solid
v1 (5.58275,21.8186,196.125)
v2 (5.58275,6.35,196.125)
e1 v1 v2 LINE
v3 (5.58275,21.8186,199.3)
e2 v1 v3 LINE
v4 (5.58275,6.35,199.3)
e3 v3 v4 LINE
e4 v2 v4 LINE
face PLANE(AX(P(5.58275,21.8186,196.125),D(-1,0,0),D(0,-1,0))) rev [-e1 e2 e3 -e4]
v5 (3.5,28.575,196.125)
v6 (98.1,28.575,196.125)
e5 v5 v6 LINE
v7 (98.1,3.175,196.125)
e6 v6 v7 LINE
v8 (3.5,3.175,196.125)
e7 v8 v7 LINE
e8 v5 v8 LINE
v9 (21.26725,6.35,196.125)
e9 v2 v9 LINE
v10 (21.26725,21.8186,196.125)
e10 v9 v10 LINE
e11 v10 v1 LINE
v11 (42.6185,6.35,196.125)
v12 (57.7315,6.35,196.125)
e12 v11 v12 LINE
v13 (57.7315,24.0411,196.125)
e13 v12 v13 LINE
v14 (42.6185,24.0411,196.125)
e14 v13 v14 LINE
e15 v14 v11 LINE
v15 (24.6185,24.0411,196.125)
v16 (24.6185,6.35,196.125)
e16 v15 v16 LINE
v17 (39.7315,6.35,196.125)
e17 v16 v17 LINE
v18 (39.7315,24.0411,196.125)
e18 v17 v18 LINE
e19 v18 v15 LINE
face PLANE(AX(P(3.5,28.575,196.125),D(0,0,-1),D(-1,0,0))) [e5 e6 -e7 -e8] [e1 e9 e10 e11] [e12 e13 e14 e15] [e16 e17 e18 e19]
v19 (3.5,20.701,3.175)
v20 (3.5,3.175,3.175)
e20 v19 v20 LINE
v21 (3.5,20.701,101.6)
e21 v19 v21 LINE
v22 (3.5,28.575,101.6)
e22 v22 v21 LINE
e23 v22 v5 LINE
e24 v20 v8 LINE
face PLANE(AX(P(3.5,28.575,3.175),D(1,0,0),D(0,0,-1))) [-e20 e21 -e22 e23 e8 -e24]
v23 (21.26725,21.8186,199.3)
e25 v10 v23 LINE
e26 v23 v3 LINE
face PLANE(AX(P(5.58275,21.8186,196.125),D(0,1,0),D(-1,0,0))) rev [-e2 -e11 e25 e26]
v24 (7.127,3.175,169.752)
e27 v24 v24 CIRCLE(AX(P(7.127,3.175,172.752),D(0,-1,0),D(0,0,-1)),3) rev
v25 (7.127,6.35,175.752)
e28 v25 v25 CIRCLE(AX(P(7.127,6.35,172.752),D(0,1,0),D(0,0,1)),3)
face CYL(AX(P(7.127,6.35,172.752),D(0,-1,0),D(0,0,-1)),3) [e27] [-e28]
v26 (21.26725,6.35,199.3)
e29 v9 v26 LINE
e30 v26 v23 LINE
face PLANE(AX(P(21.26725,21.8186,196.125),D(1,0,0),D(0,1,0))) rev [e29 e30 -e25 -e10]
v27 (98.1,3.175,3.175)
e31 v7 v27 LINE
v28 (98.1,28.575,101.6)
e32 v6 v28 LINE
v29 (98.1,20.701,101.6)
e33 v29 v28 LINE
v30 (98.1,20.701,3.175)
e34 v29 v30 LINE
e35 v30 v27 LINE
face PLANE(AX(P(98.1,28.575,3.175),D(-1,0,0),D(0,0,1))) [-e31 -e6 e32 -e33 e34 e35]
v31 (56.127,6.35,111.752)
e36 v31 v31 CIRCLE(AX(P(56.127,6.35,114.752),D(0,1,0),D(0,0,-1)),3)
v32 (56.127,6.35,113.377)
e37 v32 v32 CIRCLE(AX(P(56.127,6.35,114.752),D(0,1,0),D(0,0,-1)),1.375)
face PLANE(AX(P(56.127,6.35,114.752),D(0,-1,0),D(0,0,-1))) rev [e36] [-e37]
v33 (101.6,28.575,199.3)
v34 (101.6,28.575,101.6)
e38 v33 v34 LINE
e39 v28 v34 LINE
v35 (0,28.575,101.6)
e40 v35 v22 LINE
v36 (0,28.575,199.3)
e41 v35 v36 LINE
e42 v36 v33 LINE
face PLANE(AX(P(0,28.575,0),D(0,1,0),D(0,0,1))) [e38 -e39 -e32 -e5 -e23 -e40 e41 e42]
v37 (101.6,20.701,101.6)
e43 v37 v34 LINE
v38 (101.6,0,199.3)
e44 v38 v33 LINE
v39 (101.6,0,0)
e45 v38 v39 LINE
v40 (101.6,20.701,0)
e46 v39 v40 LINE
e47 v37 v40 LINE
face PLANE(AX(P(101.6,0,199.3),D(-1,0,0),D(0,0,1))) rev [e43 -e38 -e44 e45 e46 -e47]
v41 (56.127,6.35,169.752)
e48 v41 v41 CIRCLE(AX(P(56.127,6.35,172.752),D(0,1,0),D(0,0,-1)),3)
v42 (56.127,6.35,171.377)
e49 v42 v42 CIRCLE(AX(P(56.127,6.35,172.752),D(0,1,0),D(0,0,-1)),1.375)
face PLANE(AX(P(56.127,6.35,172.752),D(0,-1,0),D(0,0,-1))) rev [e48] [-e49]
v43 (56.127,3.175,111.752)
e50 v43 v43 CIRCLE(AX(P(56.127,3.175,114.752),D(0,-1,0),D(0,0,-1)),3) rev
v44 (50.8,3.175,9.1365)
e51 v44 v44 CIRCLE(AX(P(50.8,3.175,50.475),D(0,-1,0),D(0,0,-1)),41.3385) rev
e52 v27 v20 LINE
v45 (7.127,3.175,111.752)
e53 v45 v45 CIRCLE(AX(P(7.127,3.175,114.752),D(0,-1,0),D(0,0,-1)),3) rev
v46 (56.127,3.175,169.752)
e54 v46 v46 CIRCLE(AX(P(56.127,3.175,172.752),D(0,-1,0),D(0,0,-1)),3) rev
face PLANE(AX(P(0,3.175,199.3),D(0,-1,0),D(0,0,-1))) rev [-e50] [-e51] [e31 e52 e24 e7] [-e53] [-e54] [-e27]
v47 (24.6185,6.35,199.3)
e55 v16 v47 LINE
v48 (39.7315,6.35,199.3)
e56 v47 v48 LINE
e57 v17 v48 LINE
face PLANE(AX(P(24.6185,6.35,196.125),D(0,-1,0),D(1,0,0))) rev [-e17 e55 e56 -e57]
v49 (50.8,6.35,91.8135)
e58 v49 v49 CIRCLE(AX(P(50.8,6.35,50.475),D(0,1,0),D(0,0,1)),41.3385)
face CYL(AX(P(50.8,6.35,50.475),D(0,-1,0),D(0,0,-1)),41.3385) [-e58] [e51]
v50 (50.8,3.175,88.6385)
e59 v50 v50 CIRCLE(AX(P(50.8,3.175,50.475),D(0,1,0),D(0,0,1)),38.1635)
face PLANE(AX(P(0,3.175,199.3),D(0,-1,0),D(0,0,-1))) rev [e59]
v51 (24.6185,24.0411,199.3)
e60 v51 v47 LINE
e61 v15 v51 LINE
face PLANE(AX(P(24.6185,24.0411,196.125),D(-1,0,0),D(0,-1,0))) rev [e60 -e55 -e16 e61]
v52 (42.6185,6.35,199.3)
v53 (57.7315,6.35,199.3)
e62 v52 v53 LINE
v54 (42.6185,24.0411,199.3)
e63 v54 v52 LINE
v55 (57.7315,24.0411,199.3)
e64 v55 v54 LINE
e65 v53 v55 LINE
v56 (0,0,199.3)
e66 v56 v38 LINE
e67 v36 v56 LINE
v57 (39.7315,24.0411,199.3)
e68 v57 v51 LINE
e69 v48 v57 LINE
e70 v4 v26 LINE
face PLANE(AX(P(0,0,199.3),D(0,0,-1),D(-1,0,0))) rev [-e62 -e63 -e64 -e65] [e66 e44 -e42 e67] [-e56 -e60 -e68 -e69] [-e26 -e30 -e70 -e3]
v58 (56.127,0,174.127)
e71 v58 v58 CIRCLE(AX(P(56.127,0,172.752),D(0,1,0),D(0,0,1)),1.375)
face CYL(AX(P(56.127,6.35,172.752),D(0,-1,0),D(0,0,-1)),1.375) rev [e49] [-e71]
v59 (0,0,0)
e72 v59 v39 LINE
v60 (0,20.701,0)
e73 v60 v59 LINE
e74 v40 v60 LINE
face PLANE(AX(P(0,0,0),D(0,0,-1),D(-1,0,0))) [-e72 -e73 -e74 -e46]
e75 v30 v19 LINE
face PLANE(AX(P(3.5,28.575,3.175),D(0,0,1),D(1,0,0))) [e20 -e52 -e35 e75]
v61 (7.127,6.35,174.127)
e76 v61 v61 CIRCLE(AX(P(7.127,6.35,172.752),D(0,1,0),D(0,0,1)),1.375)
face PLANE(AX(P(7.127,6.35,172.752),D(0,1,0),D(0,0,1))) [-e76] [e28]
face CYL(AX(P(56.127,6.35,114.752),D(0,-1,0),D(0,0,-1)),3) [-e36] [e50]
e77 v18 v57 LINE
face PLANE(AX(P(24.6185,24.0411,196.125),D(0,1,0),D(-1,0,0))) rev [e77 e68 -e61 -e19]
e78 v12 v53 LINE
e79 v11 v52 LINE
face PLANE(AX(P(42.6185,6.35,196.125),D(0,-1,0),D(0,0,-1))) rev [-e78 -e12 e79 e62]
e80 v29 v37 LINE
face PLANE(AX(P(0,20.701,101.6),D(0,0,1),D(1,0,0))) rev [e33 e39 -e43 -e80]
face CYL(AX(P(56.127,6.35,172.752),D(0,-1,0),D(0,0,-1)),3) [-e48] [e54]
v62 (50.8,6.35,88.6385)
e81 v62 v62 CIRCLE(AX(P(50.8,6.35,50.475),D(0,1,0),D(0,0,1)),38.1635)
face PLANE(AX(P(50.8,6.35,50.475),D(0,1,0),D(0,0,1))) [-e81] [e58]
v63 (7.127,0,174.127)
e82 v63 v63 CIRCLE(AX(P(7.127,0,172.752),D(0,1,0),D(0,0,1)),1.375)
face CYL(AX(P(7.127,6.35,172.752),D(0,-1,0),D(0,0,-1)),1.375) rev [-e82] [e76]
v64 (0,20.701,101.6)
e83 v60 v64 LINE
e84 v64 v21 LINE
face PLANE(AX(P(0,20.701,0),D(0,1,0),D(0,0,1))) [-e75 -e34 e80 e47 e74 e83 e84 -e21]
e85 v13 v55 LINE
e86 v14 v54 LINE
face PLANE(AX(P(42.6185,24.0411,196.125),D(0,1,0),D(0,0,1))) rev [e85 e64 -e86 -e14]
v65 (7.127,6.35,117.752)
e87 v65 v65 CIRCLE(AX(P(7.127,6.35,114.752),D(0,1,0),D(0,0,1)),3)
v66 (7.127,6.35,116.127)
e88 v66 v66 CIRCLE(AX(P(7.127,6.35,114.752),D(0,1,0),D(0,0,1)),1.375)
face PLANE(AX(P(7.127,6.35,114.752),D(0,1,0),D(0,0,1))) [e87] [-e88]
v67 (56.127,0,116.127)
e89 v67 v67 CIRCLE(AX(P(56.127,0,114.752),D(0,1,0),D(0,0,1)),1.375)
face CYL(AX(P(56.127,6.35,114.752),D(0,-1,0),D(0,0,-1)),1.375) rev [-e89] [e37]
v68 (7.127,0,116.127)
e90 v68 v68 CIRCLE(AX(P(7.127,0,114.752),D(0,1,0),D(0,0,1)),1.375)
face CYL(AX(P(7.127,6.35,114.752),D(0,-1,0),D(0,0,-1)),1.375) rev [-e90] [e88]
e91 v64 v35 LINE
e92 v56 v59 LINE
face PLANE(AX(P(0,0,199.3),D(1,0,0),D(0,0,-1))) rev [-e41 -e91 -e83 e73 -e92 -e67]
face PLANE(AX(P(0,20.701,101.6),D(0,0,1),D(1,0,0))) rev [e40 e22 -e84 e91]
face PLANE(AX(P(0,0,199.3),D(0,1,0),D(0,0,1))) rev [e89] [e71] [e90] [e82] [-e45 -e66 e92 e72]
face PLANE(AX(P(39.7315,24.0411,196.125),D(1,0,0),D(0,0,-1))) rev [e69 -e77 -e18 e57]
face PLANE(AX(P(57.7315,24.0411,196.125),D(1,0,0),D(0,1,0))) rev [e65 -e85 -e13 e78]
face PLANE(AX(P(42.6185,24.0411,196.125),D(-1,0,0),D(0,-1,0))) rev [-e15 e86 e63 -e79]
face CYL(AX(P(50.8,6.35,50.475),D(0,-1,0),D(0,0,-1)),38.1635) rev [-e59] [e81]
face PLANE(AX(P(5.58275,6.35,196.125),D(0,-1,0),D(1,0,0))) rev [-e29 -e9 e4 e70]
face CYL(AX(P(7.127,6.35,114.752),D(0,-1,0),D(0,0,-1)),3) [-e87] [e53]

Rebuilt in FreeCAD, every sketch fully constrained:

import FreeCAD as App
import Part
import Sketcher

V = App.Vector
Q = App.Units.Quantity

doc = App.newDocument("Part")
body = doc.addObject("PartDesign::Body", "Body")

sketch1 = body.newObject("Sketcher::SketchObject", "Sketch")
sketch1.AttachmentSupport = (doc.getObject("XY_Plane"), [""])
sketch1.MapMode = "FlatFace"
sketch1.addGeometry([
    Part.LineSegment(V(0, 3.175, 0), V(0, 0, 0)),
    Part.LineSegment(V(0, 0, 0), V(101.6, 0, 0)),
    Part.LineSegment(V(101.6, 0, 0), V(101.6, 3.175, 0)),
    Part.LineSegment(V(101.6, 3.175, 0), V(0, 3.175, 0)),
], False)
sketch1.addConstraint([
    Sketcher.Constraint("Coincident", 0, 2, 1, 1),
    Sketcher.Constraint("Coincident", 1, 2, 2, 1),
    Sketcher.Constraint("Coincident", 2, 2, 3, 1),
    Sketcher.Constraint("Coincident", 3, 2, 0, 1),
    Sketcher.Constraint("Vertical", 0),
    Sketcher.Constraint("Horizontal", 1),
    Sketcher.Constraint("Vertical", 2),
    Sketcher.Constraint("Horizontal", 3),
    Sketcher.Constraint("Coincident", 0, 2, -1, 1),
    Sketcher.Constraint("DistanceX", 1, 1, 1, 2, Q("4 in")),
    Sketcher.Constraint("DistanceY", 0, 2, 0, 1, Q("0.125 in")),
])
pad1 = body.newObject("PartDesign::Pad", "Pad")
pad1.Profile = sketch1
pad1.Length = 199.3

sketch2 = body.newObject("Sketcher::SketchObject", "Sketch001")
sketch2.AttachmentSupport = (doc.getObject("XZ_Plane"), [""])
sketch2.MapMode = "FlatFace"
sketch2.AttachmentOffset = App.Placement(V(0, 0, -0.125 * 25.4), App.Rotation())
sketch2.addGeometry([
    Part.LineSegment(V(0, 0, 0), V(0, 199.3, 0)),
    Part.LineSegment(V(0, 199.3, 0), V(101.6, 199.3, 0)),
    Part.LineSegment(V(101.6, 199.3, 0), V(101.6, 0, 0)),
    Part.LineSegment(V(101.6, 0, 0), V(0, 0, 0)),
    Part.LineSegment(V(98.1, 196.125, 0), V(3.5, 196.125, 0)),
    Part.LineSegment(V(3.5, 196.125, 0), V(3.5, 3.175, 0)),
    Part.LineSegment(V(3.5, 3.175, 0), V(98.1, 3.175, 0)),
    Part.LineSegment(V(98.1, 3.175, 0), V(98.1, 196.125, 0)),
], False)
sketch2.addConstraint([
    Sketcher.Constraint("Coincident", 0, 2, 1, 1),
    Sketcher.Constraint("Coincident", 1, 2, 2, 1),
    Sketcher.Constraint("Coincident", 2, 2, 3, 1),
    Sketcher.Constraint("Coincident", 3, 2, 0, 1),
    Sketcher.Constraint("Coincident", 4, 2, 5, 1),
    Sketcher.Constraint("Coincident", 5, 2, 6, 1),
    Sketcher.Constraint("Coincident", 6, 2, 7, 1),
    Sketcher.Constraint("Coincident", 7, 2, 4, 1),
    Sketcher.Constraint("Vertical", 0),
    Sketcher.Constraint("Horizontal", 1),
    Sketcher.Constraint("Vertical", 2),
    Sketcher.Constraint("Horizontal", 3),
    Sketcher.Constraint("Horizontal", 4),
    Sketcher.Constraint("Vertical", 5),
    Sketcher.Constraint("Horizontal", 6),
    Sketcher.Constraint("Vertical", 7),
    Sketcher.Constraint("Coincident", 3, 2, -1, 1),
    Sketcher.Constraint("DistanceX", 1, 1, 1, 2, Q("4 in")),
    Sketcher.Constraint("DistanceY", -1, 1, 5, 2, Q("0.125 in")),
    Sketcher.Constraint("DistanceY", 4, 2, 0, 2, Q("0.125 in")),
    Sketcher.Constraint("DistanceX", 4, 2, 4, 1, Q("94.6 mm")),
    Sketcher.Constraint("DistanceY", 0, 1, 0, 2, Q("199.3 mm")),
    Sketcher.Constraint("DistanceX", -1, 1, 4, 2, Q("3.5 mm")),
])
pad2 = body.newObject("PartDesign::Pad", "Pad001")
pad2.Profile = sketch2
pad2.Length = Q("1 in")
pad2.Reversed = True

sketch3 = body.newObject("Sketcher::SketchObject", "Sketch002")
sketch3.AttachmentSupport = (doc.getObject("XZ_Plane"), [""])
sketch3.MapMode = "FlatFace"
sketch3.AttachmentOffset = App.Placement(V(0, 0, -0.125 * 25.4), App.Rotation())
sketch3.addGeometry([
    Part.Circle(V(50.8, 50.475, 0), V(0, 0, 1), 41.3385),
    Part.Circle(V(50.8, 50.475, 0), V(0, 0, 1), 38.1635),
], False)
sketch3.addConstraint([
    Sketcher.Constraint("Coincident", 1, 3, 0, 3),
    Sketcher.Constraint("Diameter", 0, Q("3.255 in")),
    Sketcher.Constraint("Diameter", 1, Q("3.005 in")),
    Sketcher.Constraint("DistanceX", -1, 1, 0, 3, Q("2 in")),
    Sketcher.Constraint("DistanceY", -1, 1, 0, 3, Q("50.475 mm")),
])
pad3 = body.newObject("PartDesign::Pad", "Pad002")
pad3.Profile = sketch3
pad3.Length = Q("0.125 in")
pad3.Reversed = True

sketch4 = body.newObject("Sketcher::SketchObject", "Sketch003")
sketch4.AttachmentSupport = (doc.getObject("XZ_Plane"), [""])
sketch4.MapMode = "FlatFace"
sketch4.AttachmentOffset = App.Placement(V(0, 0, -0.125 * 25.4), App.Rotation())
sketch4.addGeometry([
    Part.Circle(V(7.127, 172.752, 0), V(0, 0, 1), 3),
    Part.Circle(V(7.127, 172.752, 0), V(0, 0, 1), 1.375),
    Part.Circle(V(7.127, 114.752, 0), V(0, 0, 1), 3),
    Part.Circle(V(7.127, 114.752, 0), V(0, 0, 1), 1.375),
    Part.Circle(V(56.127, 172.752, 0), V(0, 0, 1), 3),
    Part.Circle(V(56.127, 172.752, 0), V(0, 0, 1), 1.375),
    Part.Circle(V(56.127, 114.752, 0), V(0, 0, 1), 3),
    Part.Circle(V(56.127, 114.752, 0), V(0, 0, 1), 1.375),
], False)
sketch4.addConstraint([
    Sketcher.Constraint("Coincident", 1, 3, 0, 3),
    Sketcher.Constraint("Coincident", 3, 3, 2, 3),
    Sketcher.Constraint("Coincident", 5, 3, 4, 3),
    Sketcher.Constraint("Coincident", 7, 3, 6, 3),
    Sketcher.Constraint("Equal", 0, 2),
    Sketcher.Constraint("Equal", 1, 3),
    Sketcher.Constraint("Equal", 2, 4),
    Sketcher.Constraint("Equal", 3, 5),
    Sketcher.Constraint("Equal", 4, 6),
    Sketcher.Constraint("Equal", 5, 7),
    Sketcher.Constraint("Horizontal", 1, 3, 4, 3),
    Sketcher.Constraint("Horizontal", 3, 3, 6, 3),
    Sketcher.Constraint("Vertical", 1, 3, 2, 3),
    Sketcher.Constraint("Vertical", 5, 3, 6, 3),
    Sketcher.Constraint("Diameter", 0, Q("6 mm")),
    Sketcher.Constraint("Diameter", 1, Q("2.75 mm")),
    Sketcher.Constraint("DistanceX", -1, 1, 0, 3, Q("7.127 mm")),
    Sketcher.Constraint("DistanceY", -1, 1, 0, 3, Q("172.752 mm")),
    Sketcher.Constraint("DistanceY", -1, 1, 2, 3, Q("114.752 mm")),
    Sketcher.Constraint("DistanceX", -1, 1, 4, 3, Q("56.127 mm")),
])
pad4 = body.newObject("PartDesign::Pad", "Pad003")
pad4.Profile = sketch4
pad4.Length = Q("0.125 in")
pad4.Reversed = True

sketch5 = body.newObject("Sketcher::SketchObject", "Sketch004")
sketch5.AttachmentSupport = (doc.getObject("XY_Plane"), [""])
sketch5.MapMode = "FlatFace"
sketch5.AttachmentOffset = App.Placement(V(0, 0, 199.3), App.Rotation())
sketch5.addGeometry([
    Part.LineSegment(V(5.58275, 21.8186, 0), V(5.58275, 6.35, 0)),
    Part.LineSegment(V(5.58275, 6.35, 0), V(21.26725, 6.35, 0)),
    Part.LineSegment(V(21.26725, 6.35, 0), V(21.26725, 21.8186, 0)),
    Part.LineSegment(V(21.26725, 21.8186, 0), V(5.58275, 21.8186, 0)),
    Part.LineSegment(V(24.6185, 24.0411, 0), V(24.6185, 6.35, 0)),
    Part.LineSegment(V(24.6185, 6.35, 0), V(39.7315, 6.35, 0)),
    Part.LineSegment(V(39.7315, 6.35, 0), V(39.7315, 24.0411, 0)),
    Part.LineSegment(V(39.7315, 24.0411, 0), V(24.6185, 24.0411, 0)),
    Part.LineSegment(V(42.6185, 24.0411, 0), V(42.6185, 6.35, 0)),
    Part.LineSegment(V(42.6185, 6.35, 0), V(57.7315, 6.35, 0)),
    Part.LineSegment(V(57.7315, 6.35, 0), V(57.7315, 24.0411, 0)),
    Part.LineSegment(V(57.7315, 24.0411, 0), V(42.6185, 24.0411, 0)),
], False)
sketch5.addConstraint([
    Sketcher.Constraint("Coincident", 0, 2, 1, 1),
    Sketcher.Constraint("Coincident", 1, 2, 2, 1),
    Sketcher.Constraint("Coincident", 2, 2, 3, 1),
    Sketcher.Constraint("Coincident", 3, 2, 0, 1),
    Sketcher.Constraint("Coincident", 4, 2, 5, 1),
    Sketcher.Constraint("Coincident", 5, 2, 6, 1),
    Sketcher.Constraint("Coincident", 6, 2, 7, 1),
    Sketcher.Constraint("Coincident", 7, 2, 4, 1),
    Sketcher.Constraint("Coincident", 8, 2, 9, 1),
    Sketcher.Constraint("Coincident", 9, 2, 10, 1),
    Sketcher.Constraint("Coincident", 10, 2, 11, 1),
    Sketcher.Constraint("Coincident", 11, 2, 8, 1),
    Sketcher.Constraint("Vertical", 0),
    Sketcher.Constraint("Horizontal", 1),
    Sketcher.Constraint("Vertical", 2),
    Sketcher.Constraint("Horizontal", 3),
    Sketcher.Constraint("Vertical", 4),
    Sketcher.Constraint("Horizontal", 5),
    Sketcher.Constraint("Vertical", 6),
    Sketcher.Constraint("Horizontal", 7),
    Sketcher.Constraint("Vertical", 8),
    Sketcher.Constraint("Horizontal", 9),
    Sketcher.Constraint("Vertical", 10),
    Sketcher.Constraint("Horizontal", 11),
    Sketcher.Constraint("Horizontal", 1, 2, 4, 2),
    Sketcher.Constraint("Horizontal", 5, 2, 8, 2),
    Sketcher.Constraint("Horizontal", 7, 2, 10, 2),
    Sketcher.Constraint("Equal", 7, 9),
    Sketcher.Constraint("DistanceX", 5, 1, 5, 2, Q("0.595 in")),
    Sketcher.Constraint("DistanceY", 0, 2, 0, 1, Q("0.609 in")),
    Sketcher.Constraint("DistanceY", -1, 1, 0, 2, Q("0.25 in")),
    Sketcher.Constraint("DistanceX", 1, 1, 1, 2, Q("0.6175 in")),
    Sketcher.Constraint("DistanceY", 4, 2, 4, 1, Q("0.6965 in")),
    Sketcher.Constraint("DistanceX", -1, 1, 4, 2, Q("24.6185 mm")),
    Sketcher.Constraint("DistanceX", -1, 1, 8, 2, Q("42.6185 mm")),
    Sketcher.Constraint("DistanceX", -1, 1, 0, 2, Q("5.58275 mm")),
])
pocket1 = body.newObject("PartDesign::Pocket", "Pocket")
pocket1.Profile = sketch5
pocket1.Length = Q("0.125 in")

sketch6 = body.newObject("Sketcher::SketchObject", "Sketch005")
sketch6.AttachmentSupport = (doc.getObject("XZ_Plane"), [""])
sketch6.MapMode = "FlatFace"
sketch6.AttachmentOffset = App.Placement(V(0, 0, -0.125 * 25.4), App.Rotation())
sketch6.addGeometry([
    Part.Circle(V(7.127, 114.752, 0), V(0, 0, 1), 1.375),
    Part.Circle(V(56.127, 114.752, 0), V(0, 0, 1), 1.375),
    Part.Circle(V(56.127, 172.752, 0), V(0, 0, 1), 1.375),
    Part.Circle(V(7.127, 172.752, 0), V(0, 0, 1), 1.375),
], False)
sketch6.addConstraint([
    Sketcher.Constraint("Equal", 0, 1),
    Sketcher.Constraint("Equal", 1, 2),
    Sketcher.Constraint("Equal", 2, 3),
    Sketcher.Constraint("Horizontal", 0, 3, 1, 3),
    Sketcher.Constraint("Horizontal", 2, 3, 3, 3),
    Sketcher.Constraint("Vertical", 1, 3, 2, 3),
    Sketcher.Constraint("Vertical", 0, 3, 3, 3),
    Sketcher.Constraint("Diameter", 0, Q("2.75 mm")),
    Sketcher.Constraint("DistanceX", -1, 1, 0, 3, Q("7.127 mm")),
    Sketcher.Constraint("DistanceY", -1, 1, 0, 3, Q("114.752 mm")),
    Sketcher.Constraint("DistanceX", -1, 1, 1, 3, Q("56.127 mm")),
    Sketcher.Constraint("DistanceY", -1, 1, 2, 3, Q("172.752 mm")),
])
pocket2 = body.newObject("PartDesign::Pocket", "Pocket001")
pocket2.Profile = sketch6
pocket2.Length = Q("0.125 in")
pocket2.Reversed = True

sketch7 = body.newObject("Sketcher::SketchObject", "Sketch006")
sketch7.AttachmentSupport = (doc.getObject("XZ_Plane"), [""])
sketch7.MapMode = "FlatFace"
sketch7.AttachmentOffset = App.Placement(V(0, 0, -1.125 * 25.4), App.Rotation())
sketch7.addGeometry([
    Part.LineSegment(V(0, 0, 0), V(0, 101.6, 0)),
    Part.LineSegment(V(0, 101.6, 0), V(101.6, 101.6, 0)),
    Part.LineSegment(V(101.6, 101.6, 0), V(101.6, 0, 0)),
    Part.LineSegment(V(101.6, 0, 0), V(0, 0, 0)),
], False)
sketch7.addConstraint([
    Sketcher.Constraint("Coincident", 0, 2, 1, 1),
    Sketcher.Constraint("Coincident", 1, 2, 2, 1),
    Sketcher.Constraint("Coincident", 2, 2, 3, 1),
    Sketcher.Constraint("Coincident", 3, 2, 0, 1),
    Sketcher.Constraint("Vertical", 0),
    Sketcher.Constraint("Horizontal", 1),
    Sketcher.Constraint("Vertical", 2),
    Sketcher.Constraint("Horizontal", 3),
    Sketcher.Constraint("Coincident", 3, 2, -1, 1),
    Sketcher.Constraint("Equal", 3, 0),
    Sketcher.Constraint("DistanceX", 1, 1, 1, 2, Q("4 in")),
])
pocket3 = body.newObject("PartDesign::Pocket", "Pocket002")
pocket3.Profile = sketch7
pocket3.Length = Q("0.31 in")
pocket3.Reversed = True

doc.recompute()
